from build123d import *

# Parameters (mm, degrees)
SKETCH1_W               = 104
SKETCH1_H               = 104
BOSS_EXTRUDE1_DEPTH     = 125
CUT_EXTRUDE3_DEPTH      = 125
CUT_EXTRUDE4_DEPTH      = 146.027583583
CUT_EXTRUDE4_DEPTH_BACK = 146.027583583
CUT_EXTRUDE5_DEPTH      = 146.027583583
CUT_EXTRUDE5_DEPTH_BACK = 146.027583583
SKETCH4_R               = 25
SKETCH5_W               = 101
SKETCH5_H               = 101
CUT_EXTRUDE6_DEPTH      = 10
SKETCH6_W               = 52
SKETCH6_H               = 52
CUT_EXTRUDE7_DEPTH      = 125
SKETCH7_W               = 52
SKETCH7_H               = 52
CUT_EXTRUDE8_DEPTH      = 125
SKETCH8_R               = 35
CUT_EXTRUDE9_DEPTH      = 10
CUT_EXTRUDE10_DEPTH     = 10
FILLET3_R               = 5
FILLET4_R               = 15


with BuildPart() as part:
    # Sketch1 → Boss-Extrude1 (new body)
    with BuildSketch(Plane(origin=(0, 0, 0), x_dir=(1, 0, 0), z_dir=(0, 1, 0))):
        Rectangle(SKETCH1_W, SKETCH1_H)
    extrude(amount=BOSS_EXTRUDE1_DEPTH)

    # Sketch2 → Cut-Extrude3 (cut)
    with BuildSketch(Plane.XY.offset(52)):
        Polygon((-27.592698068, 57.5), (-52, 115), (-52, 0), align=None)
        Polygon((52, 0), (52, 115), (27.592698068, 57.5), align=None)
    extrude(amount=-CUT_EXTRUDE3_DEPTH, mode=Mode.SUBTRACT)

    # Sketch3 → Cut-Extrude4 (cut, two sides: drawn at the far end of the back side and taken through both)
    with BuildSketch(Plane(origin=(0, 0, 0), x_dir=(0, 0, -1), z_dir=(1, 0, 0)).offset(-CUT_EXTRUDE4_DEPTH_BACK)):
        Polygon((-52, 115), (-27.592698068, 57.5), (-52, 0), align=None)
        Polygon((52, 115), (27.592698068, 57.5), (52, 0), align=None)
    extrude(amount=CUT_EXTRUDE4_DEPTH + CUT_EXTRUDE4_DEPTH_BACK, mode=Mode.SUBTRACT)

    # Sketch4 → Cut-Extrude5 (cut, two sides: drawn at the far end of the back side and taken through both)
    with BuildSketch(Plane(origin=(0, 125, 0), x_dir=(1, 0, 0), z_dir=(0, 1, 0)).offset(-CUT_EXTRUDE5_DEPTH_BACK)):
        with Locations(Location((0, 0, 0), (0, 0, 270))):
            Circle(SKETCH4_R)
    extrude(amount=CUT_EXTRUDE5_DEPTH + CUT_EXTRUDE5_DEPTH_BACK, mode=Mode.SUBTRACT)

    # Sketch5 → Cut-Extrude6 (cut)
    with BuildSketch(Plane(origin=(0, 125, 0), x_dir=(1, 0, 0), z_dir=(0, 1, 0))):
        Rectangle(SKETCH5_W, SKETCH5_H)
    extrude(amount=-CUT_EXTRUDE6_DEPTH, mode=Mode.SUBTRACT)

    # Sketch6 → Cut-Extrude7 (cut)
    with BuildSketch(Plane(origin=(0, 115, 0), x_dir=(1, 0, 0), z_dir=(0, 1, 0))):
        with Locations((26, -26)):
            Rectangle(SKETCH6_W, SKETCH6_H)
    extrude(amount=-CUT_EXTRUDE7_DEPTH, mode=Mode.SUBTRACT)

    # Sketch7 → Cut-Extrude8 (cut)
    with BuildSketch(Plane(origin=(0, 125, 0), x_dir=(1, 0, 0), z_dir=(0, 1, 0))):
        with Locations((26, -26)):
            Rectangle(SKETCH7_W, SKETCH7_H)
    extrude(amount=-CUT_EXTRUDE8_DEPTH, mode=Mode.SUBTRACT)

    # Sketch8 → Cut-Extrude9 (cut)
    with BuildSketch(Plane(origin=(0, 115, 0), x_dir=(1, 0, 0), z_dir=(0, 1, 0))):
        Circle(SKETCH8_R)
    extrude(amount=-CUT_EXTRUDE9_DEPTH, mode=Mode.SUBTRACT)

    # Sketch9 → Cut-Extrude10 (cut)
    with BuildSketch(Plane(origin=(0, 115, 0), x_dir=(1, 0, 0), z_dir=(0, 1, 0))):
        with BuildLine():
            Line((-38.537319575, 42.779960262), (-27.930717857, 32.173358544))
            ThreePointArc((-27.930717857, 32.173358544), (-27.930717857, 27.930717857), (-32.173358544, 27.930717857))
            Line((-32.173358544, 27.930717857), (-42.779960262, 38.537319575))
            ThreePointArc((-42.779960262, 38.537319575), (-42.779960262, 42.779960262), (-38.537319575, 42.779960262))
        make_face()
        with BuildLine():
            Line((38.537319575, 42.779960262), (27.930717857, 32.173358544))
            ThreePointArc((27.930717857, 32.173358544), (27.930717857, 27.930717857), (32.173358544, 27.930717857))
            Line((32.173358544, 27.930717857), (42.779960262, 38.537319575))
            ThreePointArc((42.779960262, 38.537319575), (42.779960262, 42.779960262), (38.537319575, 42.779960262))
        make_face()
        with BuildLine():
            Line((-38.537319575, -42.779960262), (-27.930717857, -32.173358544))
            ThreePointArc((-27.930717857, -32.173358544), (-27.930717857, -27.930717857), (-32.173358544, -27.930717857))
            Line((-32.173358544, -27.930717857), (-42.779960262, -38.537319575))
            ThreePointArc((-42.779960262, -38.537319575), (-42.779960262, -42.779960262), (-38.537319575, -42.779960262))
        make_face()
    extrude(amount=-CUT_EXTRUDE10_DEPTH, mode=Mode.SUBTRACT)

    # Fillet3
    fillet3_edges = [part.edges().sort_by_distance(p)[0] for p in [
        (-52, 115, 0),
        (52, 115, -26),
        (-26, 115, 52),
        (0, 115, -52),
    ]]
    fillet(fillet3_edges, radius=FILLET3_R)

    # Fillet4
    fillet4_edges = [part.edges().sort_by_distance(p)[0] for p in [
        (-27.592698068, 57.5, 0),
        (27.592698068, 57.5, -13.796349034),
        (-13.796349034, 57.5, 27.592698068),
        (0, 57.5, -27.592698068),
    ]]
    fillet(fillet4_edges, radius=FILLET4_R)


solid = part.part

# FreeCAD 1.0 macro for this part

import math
import FreeCAD as App
import Part
import Sketcher
from FreeCAD import Vector
Q = App.Units.Quantity


def edges_at(feature, points):
    """Names of the edges that pass closest to the given points."""
    edges = feature.Shape.Edges
    near = lambda p: min(range(len(edges)), key=lambda i: edges[i].distToShape(Part.Vertex(*p))[0])
    return sorted({f"Edge{near(p) + 1}" for p in points})


def add_polygon(sketch, points):
    """Adds a closed chain of lines whose ends are joined by coincident constraints."""
    first, n = sketch.GeometryCount, len(points)
    for a, b in zip(points, points[1:] + points[:1]):
        sketch.addGeometry(Part.LineSegment(App.Vector(*a, 0), App.Vector(*b, 0)), False)
    for i in range(n):
        sketch.addConstraint(Sketcher.Constraint("Coincident", first + i, 2, first + (i + 1) % n, 1))

doc = App.newDocument("Part")
params = doc.addObject("Spreadsheet::Sheet", "Params")
for row, (alias, value) in enumerate([
    ("sketch1_width", "104 mm"),
    ("pad1_length", "125 mm"),
    ("sketch2_height", "115 mm"),
    ("pocket1_length", "125 mm"),
    ("sketch3_width", "115 mm"),
    ("sketch4_diameter", "50 mm"),
    ("sketch5_width", "101 mm"),
    ("pocket4_length", "10 mm"),
    ("sketch6_width", "52 mm"),
    ("pocket5_length", "125 mm"),
    ("sketch7_width", "52 mm"),
    ("pocket6_length", "125 mm"),
    ("sketch8_diameter", "70 mm"),
    ("pocket7_length", "10 mm"),
    ("sketch9_radius", "3 mm"),
    ("sketch9_length", "15 mm"),
    ("pocket8_length", "10 mm"),
    ("fillet_radius", "5 mm"),
    ("fillet2_radius", "15 mm"),
], start=1):
    params.set(f"A{row}", alias)
    params.set(f"B{row}", "=" + value)
    params.setAlias(f"B{row}", alias)

body = doc.addObject("PartDesign::Body", "Body")

sketch1 = body.newObject("Sketcher::SketchObject", "Sketch")
sketch1.AttachmentSupport = (doc.getObject("XZ_Plane"), [""])
sketch1.MapMode = "FlatFace"
add_polygon(sketch1, [(-52, -52), (-52, 52), (52, 52), (52, -52)])
sketch1.addConstraint([
    Sketcher.Constraint("Vertical", 0),
    Sketcher.Constraint("Horizontal", 1),
    Sketcher.Constraint("Vertical", 2),
    Sketcher.Constraint("Horizontal", 3),
    Sketcher.Constraint("Symmetric", 0, 2, 2, 2, -1, 1),
    Sketcher.Constraint("Equal", 3, 0),
    Sketcher.Constraint("DistanceX", 1, 1, 1, 2, 104.0),
])
sketch1.setExpression("Constraints[10]", "Params.sketch1_width")
pad1 = body.newObject("PartDesign::Pad", "Pad")
pad1.Profile = sketch1
pad1.setExpression("Length", "Params.pad1_length")
pad1.Reversed = True

sketch2 = body.newObject("Sketcher::SketchObject", "Sketch001")
sketch2.AttachmentSupport = (doc.getObject("XY_Plane"), [""])
sketch2.MapMode = "FlatFace"
sketch2.AttachmentOffset = App.Placement(Vector(0, 0, 52), App.Rotation())
add_polygon(sketch2, [(-28, 58), (-52, 115), (-52, 0)])
add_polygon(sketch2, [(52, 0), (52, 115), (28, 58)])
sketch2.addConstraint([
    Sketcher.Constraint("Vertical", 1),
    Sketcher.Constraint("Vertical", 3),
    Sketcher.Constraint("Symmetric", 1, 2, 5, 2, -1, 1),
    Sketcher.Constraint("Symmetric", 2, 2, 4, 2, -2),
    Sketcher.Constraint("PointOnObject", 1, 2, -1),
    Sketcher.Constraint("Parallel", 2, 4),
    Sketcher.Constraint("Parallel", 0, 5),
    Sketcher.Constraint("DistanceY", 1, 2, 1, 1, 115.0),
    Sketcher.Constraint("Angle", 0, Q("113 deg")),
    Sketcher.Constraint("DistanceX", 0, 2, -1, 1, 52.0),
])
sketch2.setExpression("Constraints[13]", "Params.sketch2_height")
pocket1 = body.newObject("PartDesign::Pocket", "Pocket")
pocket1.Profile = sketch2
pocket1.setExpression("Length", "Params.pocket1_length")

sketch3 = body.newObject("Sketcher::SketchObject", "Sketch002")
sketch3.AttachmentSupport = (doc.getObject("YZ_Plane"), [""])
sketch3.MapMode = "FlatFace"
add_polygon(sketch3, [(58, 28), (115, 52), (0, 52)])
add_polygon(sketch3, [(115, -52), (58, -28), (0, -52)])
sketch3.addConstraint([
    Sketcher.Constraint("Horizontal", 1),
    Sketcher.Constraint("Horizontal", 5),
    Sketcher.Constraint("Symmetric", 1, 2, 4, 2, -1, 1),
    Sketcher.Constraint("Symmetric", 2, 2, 3, 2, -1),
    Sketcher.Constraint("PointOnObject", 1, 2, -2),
    Sketcher.Constraint("Parallel", 2, 3),
    Sketcher.Constraint("Parallel", 0, 4),
    Sketcher.Constraint("DistanceX", 1, 2, 1, 1, 115.0),
    Sketcher.Constraint("Angle", 0, Q("23 deg")),
    Sketcher.Constraint("DistanceY", -1, 1, 0, 2, 52.0),
])
sketch3.setExpression("Constraints[13]", "Params.sketch3_width")
pocket2 = body.newObject("PartDesign::Pocket", "Pocket001")
pocket2.Profile = sketch3
pocket2.Type = "ThroughAll"
pocket2.Midplane = True

sketch4 = body.newObject("Sketcher::SketchObject", "Sketch003")
sketch4.AttachmentSupport = (doc.getObject("XZ_Plane"), [""])
sketch4.MapMode = "FlatFace"
sketch4.AttachmentOffset = App.Placement(Vector(0, 0, -125), App.Rotation())
sketch4.addGeometry(Part.Circle(Vector(0, 0, 0), Vector(0, 0, 1), 25), False)
sketch4.addConstraint([
    Sketcher.Constraint("Coincident", 0, 3, -1, 1),
    Sketcher.Constraint("Diameter", 0, 50.0),
])
sketch4.setExpression("Constraints[1]", "Params.sketch4_diameter")
pocket3 = body.newObject("PartDesign::Pocket", "Pocket002")
pocket3.Profile = sketch4
pocket3.Type = "ThroughAll"
pocket3.Midplane = True

sketch5 = body.newObject("Sketcher::SketchObject", "Sketch004")
sketch5.AttachmentSupport = (doc.getObject("XZ_Plane"), [""])
sketch5.MapMode = "FlatFace"
sketch5.AttachmentOffset = App.Placement(Vector(0, 0, -125), App.Rotation())
add_polygon(sketch5, [(-50, -50), (-50, 50), (50, 50), (50, -50)])
sketch5.addConstraint([
    Sketcher.Constraint("Vertical", 0),
    Sketcher.Constraint("Horizontal", 1),
    Sketcher.Constraint("Vertical", 2),
    Sketcher.Constraint("Horizontal", 3),
    Sketcher.Constraint("Symmetric", 0, 2, 2, 2, -1, 1),
    Sketcher.Constraint("Equal", 3, 0),
    Sketcher.Constraint("DistanceX", 1, 1, 1, 2, 101.0),
])
sketch5.setExpression("Constraints[10]", "Params.sketch5_width")
pocket4 = body.newObject("PartDesign::Pocket", "Pocket003")
pocket4.Profile = sketch5
pocket4.setExpression("Length", "Params.pocket4_length")
pocket4.Reversed = True

sketch6 = body.newObject("Sketcher::SketchObject", "Sketch005")
sketch6.AttachmentSupport = (doc.getObject("XZ_Plane"), [""])
sketch6.MapMode = "FlatFace"
sketch6.AttachmentOffset = App.Placement(Vector(0, 0, -115), App.Rotation())
add_polygon(sketch6, [(0, 0), (0, 52), (52, 52), (52, 0)])
sketch6.addConstraint([
    Sketcher.Constraint("Vertical", 0),
    Sketcher.Constraint("Horizontal", 1),
    Sketcher.Constraint("Vertical", 2),
    Sketcher.Constraint("Horizontal", 3),
    Sketcher.Constraint("Coincident", 3, 2, -1, 1),
    Sketcher.Constraint("Equal", 3, 0),
    Sketcher.Constraint("DistanceX", 1, 1, 1, 2, 52.0),
])
sketch6.setExpression("Constraints[10]", "Params.sketch6_width")
pocket5 = body.newObject("PartDesign::Pocket", "Pocket004")
pocket5.Profile = sketch6
pocket5.setExpression("Length", "Params.pocket5_length")
pocket5.Reversed = True

sketch7 = body.newObject("Sketcher::SketchObject", "Sketch006")
sketch7.AttachmentSupport = (doc.getObject("XZ_Plane"), [""])
sketch7.MapMode = "FlatFace"
sketch7.AttachmentOffset = App.Placement(Vector(0, 0, -125), App.Rotation())
add_polygon(sketch7, [(0, 0), (0, 52), (52, 52), (52, 0)])
sketch7.addConstraint([
    Sketcher.Constraint("Vertical", 0),
    Sketcher.Constraint("Horizontal", 1),
    Sketcher.Constraint("Vertical", 2),
    Sketcher.Constraint("Horizontal", 3),
    Sketcher.Constraint("Coincident", 3, 2, -1, 1),
    Sketcher.Constraint("Equal", 3, 0),
    Sketcher.Constraint("DistanceX", 1, 1, 1, 2, 52.0),
])
sketch7.setExpression("Constraints[10]", "Params.sketch7_width")
pocket6 = body.newObject("PartDesign::Pocket", "Pocket005")
pocket6.Profile = sketch7
pocket6.setExpression("Length", "Params.pocket6_length")
pocket6.Reversed = True

sketch8 = body.newObject("Sketcher::SketchObject", "Sketch007")
sketch8.AttachmentSupport = (doc.getObject("XZ_Plane"), [""])
sketch8.MapMode = "FlatFace"
sketch8.AttachmentOffset = App.Placement(Vector(0, 0, -115), App.Rotation())
sketch8.addGeometry(Part.Circle(Vector(0, 0, 0), Vector(0, 0, 1), 35), False)
sketch8.addConstraint([
    Sketcher.Constraint("Coincident", 0, 3, -1, 1),
    Sketcher.Constraint("Diameter", 0, 70.0),
])
sketch8.setExpression("Constraints[1]", "Params.sketch8_diameter")
pocket7 = body.newObject("PartDesign::Pocket", "Pocket006")
pocket7.Profile = sketch8
pocket7.setExpression("Length", "Params.pocket7_length")
pocket7.Reversed = True

sketch9 = body.newObject("Sketcher::SketchObject", "Sketch008")
sketch9.AttachmentSupport = (doc.getObject("XZ_Plane"), [""])
sketch9.MapMode = "FlatFace"
sketch9.AttachmentOffset = App.Placement(Vector(0, 0, -115), App.Rotation())
sketch9.addGeometry([
    Part.LineSegment(Vector(-27.9, -32.2, 0), Vector(-38.5, -42.8, 0)),
    Part.ArcOfCircle(Part.Circle(Vector(-40.7, -40.7, 0), Vector(0, 0, 1), 3), math.radians(135), math.radians(315)),
    Part.LineSegment(Vector(-42.8, -38.5, 0), Vector(-32.2, -27.9, 0)),
    Part.ArcOfCircle(Part.Circle(Vector(-30.1, -30.1, 0), Vector(0, 0, 1), 3), math.radians(-45), math.radians(135)),
    Part.LineSegment(Vector(38.5, -42.8, 0), Vector(27.9, -32.2, 0)),
    Part.ArcOfCircle(Part.Circle(Vector(30.1, -30.1, 0), Vector(0, 0, 1), 3), math.radians(45), math.radians(225)),
    Part.LineSegment(Vector(32.2, -27.9, 0), Vector(42.8, -38.5, 0)),
    Part.ArcOfCircle(Part.Circle(Vector(40.7, -40.7, 0), Vector(0, 0, 1), 3), math.radians(-135), math.radians(45)),
    Part.LineSegment(Vector(-38.5, 42.8, 0), Vector(-27.9, 32.2, 0)),
    Part.ArcOfCircle(Part.Circle(Vector(-30.1, 30.1, 0), Vector(0, 0, 1), 3), math.radians(-135), math.radians(45)),
    Part.LineSegment(Vector(-32.2, 27.9, 0), Vector(-42.8, 38.5, 0)),
    Part.ArcOfCircle(Part.Circle(Vector(-40.7, 40.7, 0), Vector(0, 0, 1), 3), math.radians(45), math.radians(225)),
], False)
sketch9.addConstraint([
    Sketcher.Constraint("Tangent", 0, 2, 1, 2),
    Sketcher.Constraint("Tangent", 1, 1, 2, 1),
    Sketcher.Constraint("Tangent", 2, 2, 3, 2),
    Sketcher.Constraint("Tangent", 3, 1, 0, 1),
    Sketcher.Constraint("Tangent", 4, 2, 5, 2),
    Sketcher.Constraint("Tangent", 5, 1, 6, 1),
    Sketcher.Constraint("Tangent", 6, 2, 7, 2),
    Sketcher.Constraint("Tangent", 7, 1, 4, 1),
    Sketcher.Constraint("Tangent", 8, 2, 9, 2),
    Sketcher.Constraint("Tangent", 9, 1, 10, 1),
    Sketcher.Constraint("Tangent", 10, 2, 11, 2),
    Sketcher.Constraint("Tangent", 11, 1, 8, 1),
    Sketcher.Constraint("Equal", 1, 3),
    Sketcher.Constraint("Equal", 3, 5),
    Sketcher.Constraint("Equal", 5, 7),
    Sketcher.Constraint("Equal", 7, 9),
    Sketcher.Constraint("Equal", 9, 11),
    Sketcher.Constraint("Symmetric", 5, 3, 9, 3, -1, 1),
    Sketcher.Constraint("Symmetric", 7, 3, 11, 3, -1, 1),
    Sketcher.Constraint("Symmetric", 3, 3, 5, 3, -2),
    Sketcher.Constraint("Symmetric", 1, 3, 7, 3, -2),
    Sketcher.Constraint("Perpendicular", 2, 4),
    Sketcher.Constraint("Radius", 1, 3.0),
    Sketcher.Constraint("Distance", 0, 15.0),
    Sketcher.Constraint("DistanceY", 0, 2, 9, 3, 72.831998),
    Sketcher.Constraint("DistanceX", 1, 1, 5, 3, 72.831998),
])
sketch9.setExpression("Constraints[22]", "Params.sketch9_radius")
sketch9.setExpression("Constraints[23]", "Params.sketch9_length")
pocket8 = body.newObject("PartDesign::Pocket", "Pocket007")
pocket8.Profile = sketch9
pocket8.setExpression("Length", "Params.pocket8_length")
pocket8.Reversed = True
doc.recompute()

fillet = body.newObject("PartDesign::Fillet", "Fillet")
fillet.Base = (pocket8, edges_at(pocket8, [
    (-52, 115, 0),
    (52, 115, -26),
    (-26, 115, 52),
    (0, 115, -52),
]))
fillet.setExpression("Radius", "Params.fillet_radius")
doc.recompute()

fillet2 = body.newObject("PartDesign::Fillet", "Fillet001")
fillet2.Base = (fillet, edges_at(fillet, [
    (-27.593, 57.5, 0),
    (27.593, 57.5, -13.796),
    (-13.796, 57.5, 27.593),
    (0, 57.5, -27.593),
]))
fillet2.setExpression("Radius", "Params.fillet2_radius")

doc.recompute()
